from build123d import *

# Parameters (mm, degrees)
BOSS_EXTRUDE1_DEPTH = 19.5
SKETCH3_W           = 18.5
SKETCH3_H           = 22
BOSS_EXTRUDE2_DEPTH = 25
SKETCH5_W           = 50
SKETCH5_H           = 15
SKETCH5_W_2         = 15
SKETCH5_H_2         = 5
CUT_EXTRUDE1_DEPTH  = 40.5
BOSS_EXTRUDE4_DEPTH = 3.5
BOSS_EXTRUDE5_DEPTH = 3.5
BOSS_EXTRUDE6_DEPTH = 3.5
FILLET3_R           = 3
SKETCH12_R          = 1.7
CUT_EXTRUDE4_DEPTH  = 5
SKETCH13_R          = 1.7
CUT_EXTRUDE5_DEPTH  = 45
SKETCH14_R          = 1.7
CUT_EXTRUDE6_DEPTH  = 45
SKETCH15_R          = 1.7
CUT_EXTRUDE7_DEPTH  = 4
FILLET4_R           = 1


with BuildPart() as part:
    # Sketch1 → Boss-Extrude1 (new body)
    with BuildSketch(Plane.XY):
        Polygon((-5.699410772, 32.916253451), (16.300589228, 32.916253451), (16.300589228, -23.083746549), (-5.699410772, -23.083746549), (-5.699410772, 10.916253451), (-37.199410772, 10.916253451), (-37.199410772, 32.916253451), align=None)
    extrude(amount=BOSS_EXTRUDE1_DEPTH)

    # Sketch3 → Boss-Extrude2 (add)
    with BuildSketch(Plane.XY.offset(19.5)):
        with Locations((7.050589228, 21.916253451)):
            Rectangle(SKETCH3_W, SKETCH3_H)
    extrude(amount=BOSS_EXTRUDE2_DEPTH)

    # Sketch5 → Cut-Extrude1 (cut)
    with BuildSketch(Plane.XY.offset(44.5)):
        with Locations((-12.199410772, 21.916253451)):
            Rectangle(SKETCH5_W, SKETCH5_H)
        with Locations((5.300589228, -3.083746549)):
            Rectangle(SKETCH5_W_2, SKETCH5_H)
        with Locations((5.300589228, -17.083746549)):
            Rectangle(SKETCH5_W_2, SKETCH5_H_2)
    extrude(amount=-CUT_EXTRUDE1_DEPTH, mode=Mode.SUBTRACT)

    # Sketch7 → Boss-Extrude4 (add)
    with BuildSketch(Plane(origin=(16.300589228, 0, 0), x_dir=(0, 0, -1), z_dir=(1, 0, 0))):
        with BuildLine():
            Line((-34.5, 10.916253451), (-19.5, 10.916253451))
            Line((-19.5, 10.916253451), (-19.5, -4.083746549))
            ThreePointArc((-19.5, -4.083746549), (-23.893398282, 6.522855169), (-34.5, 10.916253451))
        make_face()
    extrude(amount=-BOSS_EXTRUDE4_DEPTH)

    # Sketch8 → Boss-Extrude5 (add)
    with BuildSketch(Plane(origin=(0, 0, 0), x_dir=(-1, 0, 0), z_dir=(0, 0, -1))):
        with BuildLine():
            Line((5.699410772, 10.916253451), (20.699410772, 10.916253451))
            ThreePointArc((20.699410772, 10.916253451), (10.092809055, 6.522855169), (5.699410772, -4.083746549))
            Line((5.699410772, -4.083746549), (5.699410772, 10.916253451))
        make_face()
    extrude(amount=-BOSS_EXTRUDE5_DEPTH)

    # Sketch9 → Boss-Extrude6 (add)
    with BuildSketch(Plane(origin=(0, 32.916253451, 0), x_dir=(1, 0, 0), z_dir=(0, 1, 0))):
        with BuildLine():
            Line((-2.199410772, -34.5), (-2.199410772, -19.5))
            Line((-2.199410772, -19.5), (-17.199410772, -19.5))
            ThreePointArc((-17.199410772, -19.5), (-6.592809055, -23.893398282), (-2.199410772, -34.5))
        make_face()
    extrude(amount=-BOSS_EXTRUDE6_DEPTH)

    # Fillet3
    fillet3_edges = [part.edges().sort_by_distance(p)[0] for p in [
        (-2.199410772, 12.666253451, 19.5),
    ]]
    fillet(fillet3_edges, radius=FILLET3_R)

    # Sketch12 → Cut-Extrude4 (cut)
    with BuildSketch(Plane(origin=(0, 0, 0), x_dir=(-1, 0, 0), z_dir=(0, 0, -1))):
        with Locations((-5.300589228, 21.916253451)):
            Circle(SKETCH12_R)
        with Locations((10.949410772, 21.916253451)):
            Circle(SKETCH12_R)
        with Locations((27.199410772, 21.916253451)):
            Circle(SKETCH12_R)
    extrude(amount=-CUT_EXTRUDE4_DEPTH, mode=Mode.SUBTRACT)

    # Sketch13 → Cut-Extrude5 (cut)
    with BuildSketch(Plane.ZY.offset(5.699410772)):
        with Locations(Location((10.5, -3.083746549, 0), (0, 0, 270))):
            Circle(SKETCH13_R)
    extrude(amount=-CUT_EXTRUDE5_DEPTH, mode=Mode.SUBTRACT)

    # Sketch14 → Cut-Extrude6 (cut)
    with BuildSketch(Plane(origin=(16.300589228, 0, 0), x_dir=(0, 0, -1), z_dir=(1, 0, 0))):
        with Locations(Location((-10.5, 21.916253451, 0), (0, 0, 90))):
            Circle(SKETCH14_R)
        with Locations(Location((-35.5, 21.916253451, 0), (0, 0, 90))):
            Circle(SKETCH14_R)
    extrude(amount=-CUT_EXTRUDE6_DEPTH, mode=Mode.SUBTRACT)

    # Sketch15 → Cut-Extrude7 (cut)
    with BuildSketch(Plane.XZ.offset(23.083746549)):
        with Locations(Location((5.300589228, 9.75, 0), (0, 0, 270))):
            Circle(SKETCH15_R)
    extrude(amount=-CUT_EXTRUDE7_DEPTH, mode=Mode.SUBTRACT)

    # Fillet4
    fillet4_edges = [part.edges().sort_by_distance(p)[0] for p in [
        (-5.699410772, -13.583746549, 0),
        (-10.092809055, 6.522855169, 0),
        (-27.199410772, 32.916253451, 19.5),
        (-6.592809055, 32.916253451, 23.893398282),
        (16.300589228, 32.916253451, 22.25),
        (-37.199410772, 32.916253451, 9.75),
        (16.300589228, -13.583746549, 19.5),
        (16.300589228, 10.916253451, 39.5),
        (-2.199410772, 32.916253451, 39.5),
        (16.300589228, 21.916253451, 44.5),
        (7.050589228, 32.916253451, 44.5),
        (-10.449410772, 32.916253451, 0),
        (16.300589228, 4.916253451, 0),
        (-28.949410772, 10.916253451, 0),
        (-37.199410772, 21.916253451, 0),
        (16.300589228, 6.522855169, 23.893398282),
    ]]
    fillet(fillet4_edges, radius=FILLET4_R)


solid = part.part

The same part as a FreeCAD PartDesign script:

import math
import FreeCAD as App
import Part
import Sketcher

V = App.Vector
Q = App.Units.Quantity


def edges_at(feature, points):
    """Names of the edges that pass closest to the given points."""
    edges = feature.Shape.Edges
    near = lambda p: min(range(len(edges)), key=lambda i: edges[i].distToShape(Part.Vertex(*p))[0])
    return sorted({f"Edge{near(p) + 1}" for p in points})

doc = App.newDocument("Part")
body = doc.addObject("PartDesign::Body", "Body")

# Sketch on XY plane
sketch1 = doc.addObject("Sketcher::SketchObject", "Sketch")
body.addObject(sketch1)
sketch1.AttachmentSupport = (doc.XY_Plane, [""])
sketch1.MapMode = "FlatFace"
sketch1.addGeometry([
    Part.LineSegment(V(16, 33, 0), V(-37, 33, 0)),  # 0
    Part.LineSegment(V(-37, 33, 0), V(-37, 11, 0)),  # 1
    Part.LineSegment(V(-37, 11, 0), V(-6, 11, 0)),  # 2
    Part.LineSegment(V(-6, 11, 0), V(-6, -23, 0)),  # 3
    Part.LineSegment(V(-6, -23, 0), V(16, -23, 0)),  # 4
    Part.LineSegment(V(16, -23, 0), V(16, 33, 0)),  # 5
], False)
sketch1.addConstraint([
    Sketcher.Constraint("Coincident", 0, 2, 1, 1),
    Sketcher.Constraint("Coincident", 1, 2, 2, 1),
    Sketcher.Constraint("Coincident", 2, 2, 3, 1),
    Sketcher.Constraint("Coincident", 3, 2, 4, 1),
    Sketcher.Constraint("Coincident", 4, 2, 5, 1),
    Sketcher.Constraint("Coincident", 5, 2, 0, 1),
    Sketcher.Constraint("Horizontal", 0),
    Sketcher.Constraint("Vertical", 1),
    Sketcher.Constraint("Horizontal", 2),
    Sketcher.Constraint("Vertical", 3),
    Sketcher.Constraint("Horizontal", 4),
    Sketcher.Constraint("Vertical", 5),
    Sketcher.Constraint("Equal", 4, 1),
    Sketcher.Constraint("DistanceX", 4, 1, 4, 2, Q("22 mm")),
    Sketcher.Constraint("DistanceY", 3, 2, 3, 1, Q("34 mm")),
    Sketcher.Constraint("DistanceX", 0, 2, 0, 1, Q("53.5 mm")),
    Sketcher.Constraint("DistanceX", 0, 2, -1, 1, Q("37.199411 mm")),
    Sketcher.Constraint("DistanceY", -1, 1, 0, 2, Q("32.916253 mm")),
])
pad1 = doc.addObject("PartDesign::Pad", "Pad")
body.addObject(pad1)
pad1.Profile = sketch1
pad1.Length = 19.5

# Sketch on XY plane
sketch2 = doc.addObject("Sketcher::SketchObject", "Sketch001")
body.addObject(sketch2)
sketch2.AttachmentSupport = (doc.XY_Plane, [""])
sketch2.MapMode = "FlatFace"
sketch2.AttachmentOffset = App.Placement(V(0, 0, 19.5), App.Rotation())
sketch2.addGeometry([
    Part.LineSegment(V(-2, 33, 0), V(-2, 11, 0)),
    Part.LineSegment(V(-2, 11, 0), V(16, 11, 0)),
    Part.LineSegment(V(16, 11, 0), V(16, 33, 0)),
    Part.LineSegment(V(16, 33, 0), V(-2, 33, 0)),
], False)
sketch2.addConstraint([
    Sketcher.Constraint("Coincident", 0, 2, 1, 1),
    Sketcher.Constraint("Coincident", 1, 2, 2, 1),
    Sketcher.Constraint("Coincident", 2, 2, 3, 1),
    Sketcher.Constraint("Coincident", 3, 2, 0, 1),
    Sketcher.Constraint("Vertical", 0),
    Sketcher.Constraint("Horizontal", 1),
    Sketcher.Constraint("Vertical", 2),
    Sketcher.Constraint("Horizontal", 3),
    Sketcher.Constraint("DistanceY", 0, 2, 0, 1, Q("22 mm")),
    Sketcher.Constraint("DistanceX", 1, 1, 1, 2, Q("18.5 mm")),
    Sketcher.Constraint("DistanceX", 0, 2, -1, 1, Q("2.199411 mm")),
    Sketcher.Constraint("DistanceY", -1, 1, 0, 2, Q("10.916253 mm")),
])
pad2 = doc.addObject("PartDesign::Pad", "Pad001")
body.addObject(pad2)
pad2.Profile = sketch2
pad2.Length = 25

# Sketch on XY plane
sketch3 = doc.addObject("Sketcher::SketchObject", "Sketch002")
body.addObject(sketch3)
sketch3.AttachmentSupport = (doc.XY_Plane, [""])
sketch3.MapMode = "FlatFace"
sketch3.AttachmentOffset = App.Placement(V(0, 0, 44.5), App.Rotation())
sketch3.addGeometry([
    Part.LineSegment(V(-37, 29, 0), V(-37, 14, 0)),  # 0
    Part.LineSegment(V(-37, 14, 0), V(13, 14, 0)),  # 1
    Part.LineSegment(V(13, 14, 0), V(13, 29, 0)),  # 2
    Part.LineSegment(V(13, 29, 0), V(-37, 29, 0)),  # 3
    Part.LineSegment(V(-2, 4, 0), V(-2, -11, 0)),  # 4
    Part.LineSegment(V(-2, -11, 0), V(13, -11, 0)),  # 5
    Part.LineSegment(V(13, -11, 0), V(13, 4, 0)),  # 6
    Part.LineSegment(V(13, 4, 0), V(-2, 4, 0)),  # 7
    Part.LineSegment(V(-2, -15, 0), V(-2, -20, 0)),  # 8
    Part.LineSegment(V(-2, -20, 0), V(13, -20, 0)),  # 9
    Part.LineSegment(V(13, -20, 0), V(13, -15, 0)),  # 10
    Part.LineSegment(V(13, -15, 0), V(-2, -15, 0)),  # 11
], False)
sketch3.addConstraint([
    Sketcher.Constraint("Coincident", 0, 2, 1, 1),
    Sketcher.Constraint("Coincident", 1, 2, 2, 1),
    Sketcher.Constraint("Coincident", 2, 2, 3, 1),
    Sketcher.Constraint("Coincident", 3, 2, 0, 1),
    Sketcher.Constraint("Coincident", 4, 2, 5, 1),
    Sketcher.Constraint("Coincident", 5, 2, 6, 1),
    Sketcher.Constraint("Coincident", 6, 2, 7, 1),
    Sketcher.Constraint("Coincident", 7, 2, 4, 1),
    Sketcher.Constraint("Coincident", 8, 2, 9, 1),
    Sketcher.Constraint("Coincident", 9, 2, 10, 1),
    Sketcher.Constraint("Coincident", 10, 2, 11, 1),
    Sketcher.Constraint("Coincident", 11, 2, 8, 1),
    Sketcher.Constraint("Vertical", 0),
    Sketcher.Constraint("Horizontal", 1),
    Sketcher.Constraint("Vertical", 2),
    Sketcher.Constraint("Horizontal", 3),
    Sketcher.Constraint("Vertical", 4),
    Sketcher.Constraint("Horizontal", 5),
    Sketcher.Constraint("Vertical", 6),
    Sketcher.Constraint("Horizontal", 7),
    Sketcher.Constraint("Vertical", 8),
    Sketcher.Constraint("Horizontal", 9),
    Sketcher.Constraint("Vertical", 10),
    Sketcher.Constraint("Horizontal", 11),
    Sketcher.Constraint("Vertical", 2, 2, 5, 2),
    Sketcher.Constraint("Vertical", 7, 2, 8, 2),
    Sketcher.Constraint("Vertical", 6, 2, 9, 2),
    Sketcher.Constraint("Equal", 11, 0),
    Sketcher.Constraint("Equal", 2, 4),
    Sketcher.Constraint("DistanceX", 1, 1, 1, 2, Q("50 mm")),
    Sketcher.Constraint("DistanceX", 5, 1, 5, 2, Q("15 mm")),
    Sketcher.Constraint("DistanceY", 8, 2, 8, 1, Q("5 mm")),
    Sketcher.Constraint("DistanceY", 4, 2, 1, 2, Q("25 mm")),
    Sketcher.Constraint("DistanceY", 8, 2, 4, 2, Q("9 mm")),
    Sketcher.Constraint("DistanceX", 0, 2, -1, 1, Q("37.199411 mm")),
    Sketcher.Constraint("DistanceY", -1, 1, 0, 2, Q("14.416253 mm")),
])
pocket1 = doc.addObject("PartDesign::Pocket", "Pocket")
body.addObject(pocket1)
pocket1.Profile = sketch3
pocket1.Length = 40.5

# Sketch on YZ plane
sketch4 = doc.addObject("Sketcher::SketchObject", "Sketch003")
body.addObject(sketch4)
sketch4.AttachmentSupport = (doc.YZ_Plane, [""])
sketch4.MapMode = "FlatFace"
sketch4.AttachmentOffset = App.Placement(V(0, 0, 16.300589), App.Rotation())
sketch4.addGeometry([
    Part.LineSegment(V(11, 20, 0), V(11, 34, 0)),
    Part.ArcOfCircle(Part.Circle(V(-4, 34, 0), V(0, 0, 1), 15), math.radians(-90), math.radians(0)),
    Part.LineSegment(V(-4, 20, 0), V(11, 20, 0)),
], False)
sketch4.addConstraint([
    Sketcher.Constraint("Tangent", 0, 2, 1, 2),
    Sketcher.Constraint("Tangent", 1, 1, 2, 1),
    Sketcher.Constraint("Coincident", 2, 2, 0, 1),
    Sketcher.Constraint("Vertical", 0),
    Sketcher.Constraint("Horizontal", 2),
    Sketcher.Constraint("Radius", 1, Q("15 mm")),
    Sketcher.Constraint("DistanceY", -1, 1, 1, 3, Q("34.5 mm")),
    Sketcher.Constraint("DistanceX", 1, 3, -1, 1, Q("4.083747 mm")),
])
pad3 = doc.addObject("PartDesign::Pad", "Pad002")
body.addObject(pad3)
pad3.Profile = sketch4
pad3.Length = 3.5
pad3.Reversed = True

# Sketch on XY plane
sketch5 = doc.addObject("Sketcher::SketchObject", "Sketch004")
body.addObject(sketch5)
sketch5.AttachmentSupport = (doc.XY_Plane, [""])
sketch5.MapMode = "FlatFace"
sketch5.addGeometry([
    Part.LineSegment(V(-21, 11, 0), V(-6, 11, 0)),
    Part.LineSegment(V(-6, 11, 0), V(-6, -4, 0)),
    Part.ArcOfCircle(Part.Circle(V(-21, -4, 0), V(0, 0, 1), 15), math.radians(0), math.radians(90)),
], False)
sketch5.addConstraint([
    Sketcher.Constraint("Coincident", 0, 2, 1, 1),
    Sketcher.Constraint("Tangent", 1, 2, 2, 1),
    Sketcher.Constraint("Tangent", 2, 2, 0, 1),
    Sketcher.Constraint("Horizontal", 0),
    Sketcher.Constraint("Vertical", 1),
    Sketcher.Constraint("Radius", 2, Q("15 mm")),
    Sketcher.Constraint("DistanceX", 2, 3, -1, 1, Q("20.699411 mm")),
    Sketcher.Constraint("DistanceY", 2, 3, -1, 1, Q("4.083747 mm")),
])
pad4 = doc.addObject("PartDesign::Pad", "Pad003")
body.addObject(pad4)
pad4.Profile = sketch5
pad4.Length = 3.5

# Sketch on XZ plane
sketch6 = doc.addObject("Sketcher::SketchObject", "Sketch005")
body.addObject(sketch6)
sketch6.AttachmentSupport = (doc.XZ_Plane, [""])
sketch6.MapMode = "FlatFace"
sketch6.AttachmentOffset = App.Placement(V(0, 0, -32.916253), App.Rotation())
sketch6.addGeometry([
    Part.LineSegment(V(-2, 34, 0), V(-2, 20, 0)),
    Part.LineSegment(V(-2, 20, 0), V(-17, 20, 0)),
    Part.ArcOfCircle(Part.Circle(V(-17, 35, 0), V(0, 0, 1), 15), math.radians(-90), math.radians(0)),
], False)
sketch6.addConstraint([
    Sketcher.Constraint("Coincident", 0, 2, 1, 1),
    Sketcher.Constraint("Tangent", 1, 2, 2, 1),
    Sketcher.Constraint("Tangent", 2, 2, 0, 1),
    Sketcher.Constraint("Vertical", 0),
    Sketcher.Constraint("Horizontal", 1),
    Sketcher.Constraint("Radius", 2, Q("15 mm")),
    Sketcher.Constraint("DistanceY", -1, 1, 2, 3, Q("34.5 mm")),
    Sketcher.Constraint("DistanceX", 2, 3, -1, 1, Q("17.199411 mm")),
])
pad5 = doc.addObject("PartDesign::Pad", "Pad004")
body.addObject(pad5)
pad5.Profile = sketch6
pad5.Length = 3.5
doc.recompute()

fillet = doc.addObject("PartDesign::Fillet", "Fillet")
body.addObject(fillet)
fillet.Base = (pad5, edges_at(pad5, [(-2.199, 12.666, 19.5)]))
fillet.Radius = 3

# Sketch on XY plane
sketch7 = doc.addObject("Sketcher::SketchObject", "Sketch006")
body.addObject(sketch7)
sketch7.AttachmentSupport = (doc.XY_Plane, [""])
sketch7.MapMode = "FlatFace"
sketch7.addGeometry([
    Part.Circle(V(5.3, 21.9, 0), V(0, 0, 1), 1.7),
    Part.Circle(V(-10.9, 21.9, 0), V(0, 0, 1), 1.7),
    Part.Circle(V(-27.2, 21.9, 0), V(0, 0, 1), 1.7),
], False)
sketch7.addConstraint([
    Sketcher.Constraint("Equal", 0, 1),
    Sketcher.Constraint("Equal", 1, 2),
    Sketcher.Constraint("Horizontal", 0, 3, 1, 3),
    Sketcher.Constraint("Horizontal", 1, 3, 2, 3),
    Sketcher.Constraint("Diameter", 0, Q("3.4 mm")),
    Sketcher.Constraint("DistanceX", 2, 3, 0, 3, Q("32.5 mm")),
    Sketcher.Constraint("DistanceX", 1, 3, 0, 3, Q("16.25 mm")),
    Sketcher.Constraint("DistanceX", -1, 1, 0, 3, Q("5.300589 mm")),
    Sketcher.Constraint("DistanceY", -1, 1, 0, 3, Q("21.916253 mm")),
])
pocket2 = doc.addObject("PartDesign::Pocket", "Pocket001")
body.addObject(pocket2)
pocket2.Profile = sketch7
pocket2.Length = 5
pocket2.Reversed = True

# Sketch on YZ plane
sketch8 = doc.addObject("Sketcher::SketchObject", "Sketch007")
body.addObject(sketch8)
sketch8.AttachmentSupport = (doc.YZ_Plane, [""])
sketch8.MapMode = "FlatFace"
sketch8.AttachmentOffset = App.Placement(V(0, 0, -5.699411), App.Rotation())
sketch8.addGeometry(Part.Circle(V(-3.1, 10.5, 0), V(0, 0, 1), 1.7), False)
sketch8.addConstraint([
    Sketcher.Constraint("Diameter", 0, Q("3.4 mm")),
    Sketcher.Constraint("DistanceY", -1, 1, 0, 3, Q("10.5 mm")),
    Sketcher.Constraint("DistanceX", 0, 3, -1, 1, Q("3.083747 mm")),
])
pocket3 = doc.addObject("PartDesign::Pocket", "Pocket002")
body.addObject(pocket3)
pocket3.Profile = sketch8
pocket3.Length = 45
pocket3.Reversed = True

# Sketch on YZ plane
sketch9 = doc.addObject("Sketcher::SketchObject", "Sketch008")
body.addObject(sketch9)
sketch9.AttachmentSupport = (doc.YZ_Plane, [""])
sketch9.MapMode = "FlatFace"
sketch9.AttachmentOffset = App.Placement(V(0, 0, 16.300589), App.Rotation())
sketch9.addGeometry([
    Part.Circle(V(21.9, 10.5, 0), V(0, 0, 1), 1.7),
    Part.Circle(V(21.9, 35.5, 0), V(0, 0, 1), 1.7),
], False)
sketch9.addConstraint([
    Sketcher.Constraint("Equal", 0, 1),
    Sketcher.Constraint("Vertical", 0, 3, 1, 3),
    Sketcher.Constraint("Diameter", 0, Q("3.4 mm")),
    Sketcher.Constraint("DistanceY", 0, 3, 1, 3, Q("25 mm")),
    Sketcher.Constraint("DistanceY", -1, 1, 0, 3, Q("10.5 mm")),
    Sketcher.Constraint("DistanceX", -1, 1, 0, 3, Q("21.916253 mm")),
])
pocket4 = doc.addObject("PartDesign::Pocket", "Pocket003")
body.addObject(pocket4)
pocket4.Profile = sketch9
pocket4.Length = 45

# Sketch on XZ plane
sketch10 = doc.addObject("Sketcher::SketchObject", "Sketch009")
body.addObject(sketch10)
sketch10.AttachmentSupport = (doc.XZ_Plane, [""])
sketch10.MapMode = "FlatFace"
sketch10.AttachmentOffset = App.Placement(V(0, 0, 23.083747), App.Rotation())
sketch10.addGeometry(Part.Circle(V(5.3, 9.8, 0), V(0, 0, 1), 1.7), False)
sketch10.addConstraint([
    Sketcher.Constraint("Diameter", 0, Q("3.4 mm")),
    Sketcher.Constraint("DistanceY", -1, 1, 0, 3, Q("9.75 mm")),
    Sketcher.Constraint("DistanceX", -1, 1, 0, 3, Q("5.300589 mm")),
])
pocket5 = doc.addObject("PartDesign::Pocket", "Pocket004")
body.addObject(pocket5)
pocket5.Profile = sketch10
pocket5.Length = 4
doc.recompute()

fillet2 = doc.addObject("PartDesign::Fillet", "Fillet001")
body.addObject(fillet2)
fillet2.Base = (pocket5, edges_at(pocket5, [
    (-5.699, -13.584, 0),
    (-10.093, 6.523, 0),
    (-27.199, 32.916, 19.5),
    (-6.593, 32.916, 23.893),
    (16.301, 32.916, 22.25),
    (-37.199, 32.916, 9.75),
    (16.301, -13.584, 19.5),
    (16.301, 10.916, 39.5),
    (-2.199, 32.916, 39.5),
    (16.301, 21.916, 44.5),
    (7.051, 32.916, 44.5),
    (-10.449, 32.916, 0),
    (16.301, 4.916, 0),
    (-28.949, 10.916, 0),
    (-37.199, 21.916, 0),
    (16.301, 6.523, 23.893),
]))
fillet2.Radius = 1

doc.recompute()
